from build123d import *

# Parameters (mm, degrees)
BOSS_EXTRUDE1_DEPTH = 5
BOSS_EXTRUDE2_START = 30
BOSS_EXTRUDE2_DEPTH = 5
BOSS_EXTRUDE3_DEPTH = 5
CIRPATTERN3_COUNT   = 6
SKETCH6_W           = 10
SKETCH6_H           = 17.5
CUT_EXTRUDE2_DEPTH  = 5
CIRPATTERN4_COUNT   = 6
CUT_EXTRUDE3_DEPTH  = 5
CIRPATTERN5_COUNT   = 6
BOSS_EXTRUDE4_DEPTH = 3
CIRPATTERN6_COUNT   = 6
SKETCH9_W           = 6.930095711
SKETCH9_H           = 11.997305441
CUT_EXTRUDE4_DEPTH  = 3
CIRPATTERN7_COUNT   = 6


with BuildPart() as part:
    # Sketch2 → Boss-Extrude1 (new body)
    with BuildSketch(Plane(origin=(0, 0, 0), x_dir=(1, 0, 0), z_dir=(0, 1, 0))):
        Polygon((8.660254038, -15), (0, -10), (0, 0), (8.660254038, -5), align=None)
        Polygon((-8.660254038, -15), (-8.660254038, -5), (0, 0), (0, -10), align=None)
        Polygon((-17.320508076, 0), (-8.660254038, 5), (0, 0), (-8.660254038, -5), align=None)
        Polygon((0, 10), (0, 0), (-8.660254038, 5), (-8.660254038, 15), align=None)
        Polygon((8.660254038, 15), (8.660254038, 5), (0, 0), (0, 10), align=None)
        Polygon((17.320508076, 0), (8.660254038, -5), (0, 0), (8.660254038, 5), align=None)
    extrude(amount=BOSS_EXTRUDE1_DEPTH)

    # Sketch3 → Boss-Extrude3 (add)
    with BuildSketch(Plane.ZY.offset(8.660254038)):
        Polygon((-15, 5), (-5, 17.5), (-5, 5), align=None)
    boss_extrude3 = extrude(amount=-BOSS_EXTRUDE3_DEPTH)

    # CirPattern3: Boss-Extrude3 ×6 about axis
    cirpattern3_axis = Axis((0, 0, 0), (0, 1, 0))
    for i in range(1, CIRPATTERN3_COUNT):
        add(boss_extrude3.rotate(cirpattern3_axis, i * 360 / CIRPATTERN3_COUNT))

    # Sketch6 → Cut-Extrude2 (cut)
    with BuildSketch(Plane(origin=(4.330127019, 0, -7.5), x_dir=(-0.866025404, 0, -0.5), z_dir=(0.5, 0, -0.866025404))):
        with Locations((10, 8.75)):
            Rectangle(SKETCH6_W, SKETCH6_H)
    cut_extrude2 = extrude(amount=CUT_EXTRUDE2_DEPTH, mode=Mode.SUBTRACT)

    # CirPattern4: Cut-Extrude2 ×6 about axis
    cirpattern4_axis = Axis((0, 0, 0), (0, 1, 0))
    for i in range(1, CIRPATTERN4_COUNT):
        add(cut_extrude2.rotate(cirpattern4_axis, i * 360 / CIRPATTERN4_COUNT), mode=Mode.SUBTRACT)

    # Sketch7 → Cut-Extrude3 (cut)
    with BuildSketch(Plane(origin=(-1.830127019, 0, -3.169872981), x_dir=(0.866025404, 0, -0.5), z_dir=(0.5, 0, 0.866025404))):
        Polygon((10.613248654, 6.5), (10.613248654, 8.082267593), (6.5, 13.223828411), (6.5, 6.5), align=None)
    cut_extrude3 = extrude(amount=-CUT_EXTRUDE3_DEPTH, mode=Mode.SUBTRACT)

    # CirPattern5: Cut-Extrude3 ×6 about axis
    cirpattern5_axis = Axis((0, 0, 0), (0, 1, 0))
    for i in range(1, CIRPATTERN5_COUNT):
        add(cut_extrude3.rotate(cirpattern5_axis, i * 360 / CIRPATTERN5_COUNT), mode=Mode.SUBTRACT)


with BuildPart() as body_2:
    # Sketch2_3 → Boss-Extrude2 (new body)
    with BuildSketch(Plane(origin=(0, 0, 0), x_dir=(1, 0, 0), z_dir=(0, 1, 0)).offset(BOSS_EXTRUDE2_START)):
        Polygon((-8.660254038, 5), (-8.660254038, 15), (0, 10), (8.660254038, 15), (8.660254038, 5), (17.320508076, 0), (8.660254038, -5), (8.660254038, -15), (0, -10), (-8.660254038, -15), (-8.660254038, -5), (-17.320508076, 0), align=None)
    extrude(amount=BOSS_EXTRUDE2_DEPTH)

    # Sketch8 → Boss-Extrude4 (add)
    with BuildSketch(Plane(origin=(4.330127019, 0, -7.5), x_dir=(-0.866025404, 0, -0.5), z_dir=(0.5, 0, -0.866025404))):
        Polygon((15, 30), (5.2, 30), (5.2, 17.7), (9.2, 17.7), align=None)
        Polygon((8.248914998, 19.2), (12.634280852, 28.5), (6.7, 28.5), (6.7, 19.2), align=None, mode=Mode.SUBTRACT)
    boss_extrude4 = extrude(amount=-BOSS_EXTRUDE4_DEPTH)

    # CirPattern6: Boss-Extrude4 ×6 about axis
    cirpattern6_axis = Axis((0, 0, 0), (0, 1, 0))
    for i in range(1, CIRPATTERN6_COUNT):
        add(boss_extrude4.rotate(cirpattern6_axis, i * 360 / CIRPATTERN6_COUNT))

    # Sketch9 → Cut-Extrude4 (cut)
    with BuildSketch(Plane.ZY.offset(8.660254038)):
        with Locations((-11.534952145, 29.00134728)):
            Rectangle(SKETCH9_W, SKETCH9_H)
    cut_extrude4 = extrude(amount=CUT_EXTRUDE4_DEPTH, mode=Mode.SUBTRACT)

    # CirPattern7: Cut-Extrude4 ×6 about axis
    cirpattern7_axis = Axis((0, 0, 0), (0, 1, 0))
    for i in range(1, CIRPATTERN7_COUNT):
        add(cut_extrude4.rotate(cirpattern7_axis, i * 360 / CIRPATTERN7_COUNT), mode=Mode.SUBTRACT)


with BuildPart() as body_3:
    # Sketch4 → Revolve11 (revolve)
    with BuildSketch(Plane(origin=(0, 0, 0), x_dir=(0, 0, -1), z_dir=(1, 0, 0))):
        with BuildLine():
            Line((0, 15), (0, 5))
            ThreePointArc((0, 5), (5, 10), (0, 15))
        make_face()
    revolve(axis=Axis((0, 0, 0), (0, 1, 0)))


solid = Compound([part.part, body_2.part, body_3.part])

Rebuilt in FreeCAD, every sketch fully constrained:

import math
import FreeCAD as App
import Part
import Sketcher
Q = App.Units.Quantity

doc = App.newDocument("Part")
params = doc.addObject("Spreadsheet::Sheet", "Params")
for row, (alias, value) in enumerate([
    ("sketch1_height", "10 mm"),
    ("sketch1_length", "10 mm"),
    ("pad1_length", "5 mm"),
    ("sketch2_height", "10 mm"),
    ("sketch2_width", "12.5 mm"),
    ("pad2_length", "5 mm"),
    ("sketch3_width", "10 mm"),
    ("sketch3_height", "17.5 mm"),
    ("pocket1_length", "5 mm"),
    ("pocket2_length", "5 mm"),
    ("sketch5_height", "10 mm"),
    ("sketch5_length", "10 mm"),
    ("pad3_length", "5 mm"),
    ("sketch6_width", "4 mm"),
    ("sketch6_width2", "9.8 mm"),
    ("sketch6_height", "12.3 mm"),
    ("sketch6_height2", "9.3 mm"),
    ("pad4_length", "3 mm"),
    ("pocket3_length", "3 mm"),
    ("sketch8_radius", "5 mm"),
    ("revolution_angle", "360 deg"),
], start=1):
    params.set(f"A{row}", alias)
    params.set(f"B{row}", "=" + value)
    params.setAlias(f"B{row}", alias)

body = doc.addObject("PartDesign::Body", "Body")

# Sketch on XZ plane
sketch1 = body.newObject("Sketcher::SketchObject", "Sketch")
sketch1.AttachmentSupport = (doc.getObject("XZ_Plane"), [""])
sketch1.MapMode = "FlatFace"
sketch1.addGeometry([
    Part.LineSegment(App.Vector(0, 10, 0), App.Vector(9, 15, 0)),  # 0
    Part.LineSegment(App.Vector(9, 15, 0), App.Vector(9, 5, 0)),  # 1
    Part.LineSegment(App.Vector(9, 5, 0), App.Vector(17, 0, 0)),  # 2
    Part.LineSegment(App.Vector(17, 0, 0), App.Vector(9, -5, 0)),  # 3
    Part.LineSegment(App.Vector(9, -5, 0), App.Vector(9, -15, 0)),  # 4
    Part.LineSegment(App.Vector(9, -15, 0), App.Vector(0, -10, 0)),  # 5
    Part.LineSegment(App.Vector(0, -10, 0), App.Vector(-9, -15, 0)),  # 6
    Part.LineSegment(App.Vector(-9, -15, 0), App.Vector(-9, -5, 0)),  # 7
    Part.LineSegment(App.Vector(-9, -5, 0), App.Vector(-17, 0, 0)),  # 8
    Part.LineSegment(App.Vector(-17, 0, 0), App.Vector(-9, 5, 0)),  # 9
    Part.LineSegment(App.Vector(-9, 5, 0), App.Vector(-9, 15, 0)),  # 10
    Part.LineSegment(App.Vector(-9, 15, 0), App.Vector(0, 10, 0)),  # 11
], False)
sketch1.addConstraint([
    Sketcher.Constraint("Coincident", 0, 2, 1, 1),
    Sketcher.Constraint("Coincident", 1, 2, 2, 1),
    Sketcher.Constraint("Coincident", 2, 2, 3, 1),
    Sketcher.Constraint("Coincident", 3, 2, 4, 1),
    Sketcher.Constraint("Coincident", 4, 2, 5, 1),
    Sketcher.Constraint("Coincident", 5, 2, 6, 1),
    Sketcher.Constraint("Coincident", 6, 2, 7, 1),
    Sketcher.Constraint("Coincident", 7, 2, 8, 1),
    Sketcher.Constraint("Coincident", 8, 2, 9, 1),
    Sketcher.Constraint("Coincident", 9, 2, 10, 1),
    Sketcher.Constraint("Coincident", 10, 2, 11, 1),
    Sketcher.Constraint("Coincident", 11, 2, 0, 1),
    Sketcher.Constraint("Vertical", 1),
    Sketcher.Constraint("Vertical", 4),
    Sketcher.Constraint("Vertical", 7),
    Sketcher.Constraint("Vertical", 10),
    Sketcher.Constraint("Symmetric", 0, 2, 6, 2, -1, 1),
    Sketcher.Constraint("Symmetric", 2, 2, 8, 2, -1, 1),
    Sketcher.Constraint("Symmetric", 3, 2, 9, 2, -1, 1),
    Sketcher.Constraint("Symmetric", 5, 2, 11, 2, -1, 1),
    Sketcher.Constraint("Symmetric", 4, 2, 6, 2, -2),
    Sketcher.Constraint("PointOnObject", 2, 2, -1),
    Sketcher.Constraint("PointOnObject", 5, 2, -2),
    Sketcher.Constraint("Parallel", 0, 3),
    Sketcher.Constraint("Parallel", 2, 5),
    Sketcher.Constraint("Parallel", 5, 8),
    Sketcher.Constraint("Parallel", 8, 11),
    Sketcher.Constraint("Equal", 0, 2),
    Sketcher.Constraint("DistanceY", 1, 2, 1, 1, Q("10 mm")),
    Sketcher.Constraint("Angle", 0, Q("30 deg")),
    Sketcher.Constraint("Distance", 0, Q("10 mm")),
])
sketch1.setExpression("Constraints[28]", "Params.sketch1_height")
sketch1.setExpression("Constraints[30]", "Params.sketch1_length")
pad1 = body.newObject("PartDesign::Pad", "Pad")
pad1.Profile = sketch1
pad1.setExpression("Length", "Params.pad1_length")
pad1.Reversed = True

# Sketch on YZ plane
sketch2 = body.newObject("Sketcher::SketchObject", "Sketch001")
sketch2.AttachmentSupport = (doc.getObject("YZ_Plane"), [""])
sketch2.MapMode = "FlatFace"
sketch2.AttachmentOffset = App.Placement(App.Vector(0, 0, -8.660254), App.Rotation())
sketch2.addGeometry([
    Part.LineSegment(App.Vector(18, -5, 0), App.Vector(5, -15, 0)),
    Part.LineSegment(App.Vector(5, -15, 0), App.Vector(5, -5, 0)),
    Part.LineSegment(App.Vector(5, -5, 0), App.Vector(18, -5, 0)),
], False)
sketch2.addConstraint([
    Sketcher.Constraint("Coincident", 0, 2, 1, 1),
    Sketcher.Constraint("Coincident", 1, 2, 2, 1),
    Sketcher.Constraint("Coincident", 2, 2, 0, 1),
    Sketcher.Constraint("Vertical", 1),
    Sketcher.Constraint("Horizontal", 2),
    Sketcher.Constraint("DistanceY", 1, 1, 1, 2, Q("10 mm")),
    Sketcher.Constraint("DistanceX", 2, 1, 2, 2, Q("12.5 mm")),
    Sketcher.Constraint("DistanceX", -1, 1, 0, 2, Q("5 mm")),
    Sketcher.Constraint("DistanceY", 0, 2, -1, 1, Q("15 mm")),
])
sketch2.setExpression("Constraints[5]", "Params.sketch2_height")
sketch2.setExpression("Constraints[6]", "Params.sketch2_width")
pad2 = body.newObject("PartDesign::Pad", "Pad001")
pad2.Profile = sketch2
pad2.setExpression("Length", "Params.pad2_length")
doc.recompute()

polarpattern = body.newObject("PartDesign::PolarPattern", "PolarPattern")
polarpattern.Originals = [pad2]
polarpattern.Axis = (doc.getObject("Y_Axis"), [""])
polarpattern.Angle = 360
polarpattern.Occurrences = 6
body.Tip = polarpattern

# Sketch on an angled plane
sketch3 = body.newObject("Sketcher::SketchObject", "Sketch002")
sketch3.Placement = App.Placement(App.Vector(4.330127, 0, -7.5), App.Rotation(App.Vector(-0.866025404, 0, -0.5), App.Vector(0, 1, 0), App.Vector(0.5, 0, -0.866025404), "ZXY"))
sketch3.addGeometry([
    Part.LineSegment(App.Vector(5, 18, 0), App.Vector(5, 0, 0)),
    Part.LineSegment(App.Vector(5, 0, 0), App.Vector(15, 0, 0)),
    Part.LineSegment(App.Vector(15, 0, 0), App.Vector(15, 18, 0)),
    Part.LineSegment(App.Vector(15, 18, 0), App.Vector(5, 18, 0)),
], False)
sketch3.addConstraint([
    Sketcher.Constraint("Coincident", 0, 2, 1, 1),
    Sketcher.Constraint("Coincident", 1, 2, 2, 1),
    Sketcher.Constraint("Coincident", 2, 2, 3, 1),
    Sketcher.Constraint("Coincident", 3, 2, 0, 1),
    Sketcher.Constraint("Vertical", 0),
    Sketcher.Constraint("Horizontal", 1),
    Sketcher.Constraint("Vertical", 2),
    Sketcher.Constraint("Horizontal", 3),
    Sketcher.Constraint("PointOnObject", 0, 2, -1),
    Sketcher.Constraint("DistanceX", 1, 1, 1, 2, Q("10 mm")),
    Sketcher.Constraint("DistanceY", 0, 2, 0, 1, Q("17.5 mm")),
    Sketcher.Constraint("DistanceX", -1, 1, 0, 2, Q("5 mm")),
])
sketch3.setExpression("Constraints[9]", "Params.sketch3_width")
sketch3.setExpression("Constraints[10]", "Params.sketch3_height")
pocket1 = body.newObject("PartDesign::Pocket", "Pocket")
pocket1.Profile = sketch3
pocket1.setExpression("Length", "Params.pocket1_length")
pocket1.Reversed = True
doc.recompute()

polarpattern2 = body.newObject("PartDesign::PolarPattern", "PolarPattern001")
polarpattern2.Originals = [pocket1]
polarpattern2.Axis = (doc.getObject("Y_Axis"), [""])
polarpattern2.Angle = 360
polarpattern2.Occurrences = 6
body.Tip = polarpattern2

# Sketch on an angled plane
sketch4 = body.newObject("Sketcher::SketchObject", "Sketch003")
sketch4.Placement = App.Placement(App.Vector(-1.830127, 0, -3.169873), App.Rotation(App.Vector(0.866025404, 0, -0.5), App.Vector(0, 1, 0), App.Vector(0.5, 0, 0.866025404), "ZXY"))
sketch4.addGeometry([
    Part.LineSegment(App.Vector(10.6, 6.5, 0), App.Vector(10.6, 8.1, 0)),
    Part.LineSegment(App.Vector(10.6, 8.1, 0), App.Vector(6.5, 13.2, 0)),
    Part.LineSegment(App.Vector(6.5, 13.2, 0), App.Vector(6.5, 6.5, 0)),
    Part.LineSegment(App.Vector(6.5, 6.5, 0), App.Vector(10.6, 6.5, 0)),
], False)
sketch4.addConstraint([
    Sketcher.Constraint("Coincident", 0, 2, 1, 1),
    Sketcher.Constraint("Coincident", 1, 2, 2, 1),
    Sketcher.Constraint("Coincident", 2, 2, 3, 1),
    Sketcher.Constraint("Coincident", 3, 2, 0, 1),
    Sketcher.Constraint("Vertical", 0),
    Sketcher.Constraint("Vertical", 2),
    Sketcher.Constraint("Horizontal", 3),
    Sketcher.Constraint("DistanceX", -1, 1, 1, 2, Q("6.5 mm")),
    Sketcher.Constraint("DistanceY", -1, 1, 2, 2, Q("6.5 mm")),
    Sketcher.Constraint("DistanceX", 3, 1, 3, 2, Q("4.113249 mm")),
    Sketcher.Constraint("DistanceY", 2, 2, 2, 1, Q("6.723828 mm")),
    Sketcher.Constraint("Distance", 1, Q("6.584411 mm")),
])
pocket2 = body.newObject("PartDesign::Pocket", "Pocket001")
pocket2.Profile = sketch4
pocket2.setExpression("Length", "Params.pocket2_length")
doc.recompute()

polarpattern3 = body.newObject("PartDesign::PolarPattern", "PolarPattern002")
polarpattern3.Originals = [pocket2]
polarpattern3.Axis = (doc.getObject("Y_Axis"), [""])
polarpattern3.Angle = 360
polarpattern3.Occurrences = 6
body.Tip = polarpattern3
body2 = doc.addObject("PartDesign::Body", "Body001")

# Sketch on XZ plane
sketch5 = body2.newObject("Sketcher::SketchObject", "Sketch004")
sketch5.AttachmentSupport = (doc.getObject("XZ_Plane001"), [""])
sketch5.MapMode = "FlatFace"
sketch5.AttachmentOffset = App.Placement(App.Vector(0, 0, -30), App.Rotation())
sketch5.addGeometry([
    Part.LineSegment(App.Vector(-9, -15, 0), App.Vector(-9, -5, 0)),  # 0
    Part.LineSegment(App.Vector(-9, -5, 0), App.Vector(-17, 0, 0)),  # 1
    Part.LineSegment(App.Vector(-17, 0, 0), App.Vector(-9, 5, 0)),  # 2
    Part.LineSegment(App.Vector(-9, 5, 0), App.Vector(-9, 15, 0)),  # 3
    Part.LineSegment(App.Vector(-9, 15, 0), App.Vector(0, 10, 0)),  # 4
    Part.LineSegment(App.Vector(0, 10, 0), App.Vector(9, 15, 0)),  # 5
    Part.LineSegment(App.Vector(9, 15, 0), App.Vector(9, 5, 0)),  # 6
    Part.LineSegment(App.Vector(9, 5, 0), App.Vector(17, 0, 0)),  # 7
    Part.LineSegment(App.Vector(17, 0, 0), App.Vector(9, -5, 0)),  # 8
    Part.LineSegment(App.Vector(9, -5, 0), App.Vector(9, -15, 0)),  # 9
    Part.LineSegment(App.Vector(9, -15, 0), App.Vector(0, -10, 0)),  # 10
    Part.LineSegment(App.Vector(0, -10, 0), App.Vector(-9, -15, 0)),  # 11
], False)
sketch5.addConstraint([
    Sketcher.Constraint("Coincident", 0, 2, 1, 1),
    Sketcher.Constraint("Coincident", 1, 2, 2, 1),
    Sketcher.Constraint("Coincident", 2, 2, 3, 1),
    Sketcher.Constraint("Coincident", 3, 2, 4, 1),
    Sketcher.Constraint("Coincident", 4, 2, 5, 1),
    Sketcher.Constraint("Coincident", 5, 2, 6, 1),
    Sketcher.Constraint("Coincident", 6, 2, 7, 1),
    Sketcher.Constraint("Coincident", 7, 2, 8, 1),
    Sketcher.Constraint("Coincident", 8, 2, 9, 1),
    Sketcher.Constraint("Coincident", 9, 2, 10, 1),
    Sketcher.Constraint("Coincident", 10, 2, 11, 1),
    Sketcher.Constraint("Coincident", 11, 2, 0, 1),
    Sketcher.Constraint("Vertical", 0),
    Sketcher.Constraint("Vertical", 3),
    Sketcher.Constraint("Vertical", 6),
    Sketcher.Constraint("Vertical", 9),
    Sketcher.Constraint("Symmetric", 0, 2, 6, 2, -1, 1),
    Sketcher.Constraint("Symmetric", 1, 2, 7, 2, -1, 1),
    Sketcher.Constraint("Symmetric", 2, 2, 8, 2, -1, 1),
    Sketcher.Constraint("Symmetric", 4, 2, 10, 2, -1, 1),
    Sketcher.Constraint("Symmetric", 3, 2, 5, 2, -2),
    Sketcher.Constraint("PointOnObject", 1, 2, -1),
    Sketcher.Constraint("PointOnObject", 4, 2, -2),
    Sketcher.Constraint("Parallel", 1, 4),
    Sketcher.Constraint("Parallel", 2, 5),
    Sketcher.Constraint("Parallel", 7, 10),
    Sketcher.Constraint("Parallel", 8, 11),
    Sketcher.Constraint("Equal", 2, 4),
    Sketcher.Constraint("DistanceY", 0, 1, 0, 2, Q("10 mm")),
    Sketcher.Constraint("Angle", 1, Q("150 deg")),
    Sketcher.Constraint("Distance", 1, Q("10 mm")),
])
sketch5.setExpression("Constraints[28]", "Params.sketch5_height")
sketch5.setExpression("Constraints[30]", "Params.sketch5_length")
pad3 = body2.newObject("PartDesign::Pad", "Pad002")
pad3.Profile = sketch5
pad3.setExpression("Length", "Params.pad3_length")
pad3.Reversed = True

# Sketch on an angled plane
sketch6 = body2.newObject("Sketcher::SketchObject", "Sketch005")
sketch6.Placement = App.Placement(App.Vector(4.330127, 0, -7.5), App.Rotation(App.Vector(-0.866025404, 0, -0.5), App.Vector(0, 1, 0), App.Vector(0.5, 0, -0.866025404), "ZXY"))
sketch6.addGeometry([
    Part.LineSegment(App.Vector(15, 30, 0), App.Vector(5.2, 30, 0)),  # 0
    Part.LineSegment(App.Vector(5.2, 30, 0), App.Vector(5.2, 17.7, 0)),  # 1
    Part.LineSegment(App.Vector(5.2, 17.7, 0), App.Vector(9.2, 17.7, 0)),  # 2
    Part.LineSegment(App.Vector(9.2, 17.7, 0), App.Vector(15, 30, 0)),  # 3
    Part.LineSegment(App.Vector(12.6, 28.5, 0), App.Vector(8.2, 19.2, 0)),  # 4
    Part.LineSegment(App.Vector(8.2, 19.2, 0), App.Vector(6.7, 19.2, 0)),  # 5
    Part.LineSegment(App.Vector(6.7, 19.2, 0), App.Vector(6.7, 28.5, 0)),  # 6
    Part.LineSegment(App.Vector(6.7, 28.5, 0), App.Vector(12.6, 28.5, 0)),  # 7
], False)
sketch6.addConstraint([
    Sketcher.Constraint("Coincident", 0, 2, 1, 1),
    Sketcher.Constraint("Coincident", 1, 2, 2, 1),
    Sketcher.Constraint("Coincident", 2, 2, 3, 1),
    Sketcher.Constraint("Coincident", 3, 2, 0, 1),
    Sketcher.Constraint("Coincident", 4, 2, 5, 1),
    Sketcher.Constraint("Coincident", 5, 2, 6, 1),
    Sketcher.Constraint("Coincident", 6, 2, 7, 1),
    Sketcher.Constraint("Coincident", 7, 2, 4, 1),
    Sketcher.Constraint("Horizontal", 0),
    Sketcher.Constraint("Vertical", 1),
    Sketcher.Constraint("Horizontal", 2),
    Sketcher.Constraint("Horizontal", 5),
    Sketcher.Constraint("Vertical", 6),
    Sketcher.Constraint("Horizontal", 7),
    Sketcher.Constraint("Parallel", 3, 4),
    Sketcher.Constraint("DistanceX", 2, 1, 2, 2, Q("4 mm")),
    Sketcher.Constraint("DistanceX", 0, 2, 0, 1, Q("9.8 mm")),
    Sketcher.Constraint("DistanceY", 1, 2, 1, 1, Q("12.3 mm")),
    Sketcher.Constraint("DistanceY", 6, 1, 6, 2, Q("9.3 mm")),
    Sketcher.Constraint("DistanceY", -1, 1, 0, 2, Q("30 mm")),
    Sketcher.Constraint("DistanceX", -1, 1, 3, 2, Q("15 mm")),
    Sketcher.Constraint("DistanceY", -1, 1, 4, 2, Q("19.2 mm")),
    Sketcher.Constraint("DistanceX", -1, 1, 5, 2, Q("6.7 mm")),
    Sketcher.Constraint("DistanceX", 7, 1, 7, 2, Q("5.934281 mm")),
])
sketch6.setExpression("Constraints[15]", "Params.sketch6_width")
sketch6.setExpression("Constraints[16]", "Params.sketch6_width2")
sketch6.setExpression("Constraints[17]", "Params.sketch6_height")
sketch6.setExpression("Constraints[18]", "Params.sketch6_height2")
pad4 = body2.newObject("PartDesign::Pad", "Pad003")
pad4.Profile = sketch6
pad4.setExpression("Length", "Params.pad4_length")
pad4.Reversed = True
doc.recompute()

polarpattern4 = body2.newObject("PartDesign::PolarPattern", "PolarPattern003")
polarpattern4.Originals = [pad4]
polarpattern4.Axis = (doc.getObject("Y_Axis001"), [""])
polarpattern4.Angle = 360
polarpattern4.Occurrences = 6
body2.Tip = polarpattern4

# Sketch on YZ plane
sketch7 = body2.newObject("Sketcher::SketchObject", "Sketch006")
sketch7.AttachmentSupport = (doc.getObject("YZ_Plane001"), [""])
sketch7.MapMode = "FlatFace"
sketch7.AttachmentOffset = App.Placement(App.Vector(0, 0, -8.660254), App.Rotation())
sketch7.addGeometry([
    Part.LineSegment(App.Vector(35, -15, 0), App.Vector(23, -15, 0)),
    Part.LineSegment(App.Vector(23, -15, 0), App.Vector(23, -8, 0)),
    Part.LineSegment(App.Vector(23, -8, 0), App.Vector(35, -8, 0)),
    Part.LineSegment(App.Vector(35, -8, 0), App.Vector(35, -15, 0)),
], False)
sketch7.addConstraint([
    Sketcher.Constraint("Coincident", 0, 2, 1, 1),
    Sketcher.Constraint("Coincident", 1, 2, 2, 1),
    Sketcher.Constraint("Coincident", 2, 2, 3, 1),
    Sketcher.Constraint("Coincident", 3, 2, 0, 1),
    Sketcher.Constraint("Horizontal", 0),
    Sketcher.Constraint("Vertical", 1),
    Sketcher.Constraint("Horizontal", 2),
    Sketcher.Constraint("Vertical", 3),
    Sketcher.Constraint("DistanceY", 0, 2, -1, 1, Q("15 mm")),
    Sketcher.Constraint("DistanceX", -1, 1, 2, 2, Q("35 mm")),
    Sketcher.Constraint("DistanceX", 0, 2, 0, 1, Q("11.997305 mm")),
    Sketcher.Constraint("DistanceY", 1, 1, 1, 2, Q("6.930096 mm")),
])
pocket3 = body2.newObject("PartDesign::Pocket", "Pocket002")
pocket3.Profile = sketch7
pocket3.setExpression("Length", "Params.pocket3_length")
doc.recompute()

polarpattern5 = body2.newObject("PartDesign::PolarPattern", "PolarPattern004")
polarpattern5.Originals = [pocket3]
polarpattern5.Axis = (doc.getObject("Y_Axis001"), [""])
polarpattern5.Angle = 360
polarpattern5.Occurrences = 6
body2.Tip = polarpattern5
body3 = doc.addObject("PartDesign::Body", "Body002")

# Sketch on YZ plane
sketch8 = body3.newObject("Sketcher::SketchObject", "Sketch007")
sketch8.AttachmentSupport = (doc.getObject("YZ_Plane002"), [""])
sketch8.MapMode = "FlatFace"
sketch8.addGeometry([
    Part.LineSegment(App.Vector(15, 0, 0), App.Vector(5, 0, 0)),
    Part.ArcOfCircle(Part.Circle(App.Vector(10, 0, 0), App.Vector(0, 0, 1), 5), math.radians(180), math.radians(360)),
], False)
sketch8.addConstraint([
    Sketcher.Constraint("Coincident", 0, 1, 1, 2),
    Sketcher.Constraint("Coincident", 1, 1, 0, 2),
    Sketcher.Constraint("Horizontal", 0),
    Sketcher.Constraint("PointOnObject", 1, 3, -1),
    Sketcher.Constraint("PointOnObject", 0, 1, -1),
    Sketcher.Constraint("Radius", 1, Q("5 mm")),
    Sketcher.Constraint("DistanceX", -1, 1, 1, 3, Q("10 mm")),
])
sketch8.setExpression("Constraints[5]", "Params.sketch8_radius")
revolution = body3.newObject("PartDesign::Revolution", "Revolution")
revolution.Profile = sketch8
revolution.ReferenceAxis = (sketch8, ["H_Axis"])
revolution.setExpression("Angle", "Params.revolution_angle")

doc.recompute()
